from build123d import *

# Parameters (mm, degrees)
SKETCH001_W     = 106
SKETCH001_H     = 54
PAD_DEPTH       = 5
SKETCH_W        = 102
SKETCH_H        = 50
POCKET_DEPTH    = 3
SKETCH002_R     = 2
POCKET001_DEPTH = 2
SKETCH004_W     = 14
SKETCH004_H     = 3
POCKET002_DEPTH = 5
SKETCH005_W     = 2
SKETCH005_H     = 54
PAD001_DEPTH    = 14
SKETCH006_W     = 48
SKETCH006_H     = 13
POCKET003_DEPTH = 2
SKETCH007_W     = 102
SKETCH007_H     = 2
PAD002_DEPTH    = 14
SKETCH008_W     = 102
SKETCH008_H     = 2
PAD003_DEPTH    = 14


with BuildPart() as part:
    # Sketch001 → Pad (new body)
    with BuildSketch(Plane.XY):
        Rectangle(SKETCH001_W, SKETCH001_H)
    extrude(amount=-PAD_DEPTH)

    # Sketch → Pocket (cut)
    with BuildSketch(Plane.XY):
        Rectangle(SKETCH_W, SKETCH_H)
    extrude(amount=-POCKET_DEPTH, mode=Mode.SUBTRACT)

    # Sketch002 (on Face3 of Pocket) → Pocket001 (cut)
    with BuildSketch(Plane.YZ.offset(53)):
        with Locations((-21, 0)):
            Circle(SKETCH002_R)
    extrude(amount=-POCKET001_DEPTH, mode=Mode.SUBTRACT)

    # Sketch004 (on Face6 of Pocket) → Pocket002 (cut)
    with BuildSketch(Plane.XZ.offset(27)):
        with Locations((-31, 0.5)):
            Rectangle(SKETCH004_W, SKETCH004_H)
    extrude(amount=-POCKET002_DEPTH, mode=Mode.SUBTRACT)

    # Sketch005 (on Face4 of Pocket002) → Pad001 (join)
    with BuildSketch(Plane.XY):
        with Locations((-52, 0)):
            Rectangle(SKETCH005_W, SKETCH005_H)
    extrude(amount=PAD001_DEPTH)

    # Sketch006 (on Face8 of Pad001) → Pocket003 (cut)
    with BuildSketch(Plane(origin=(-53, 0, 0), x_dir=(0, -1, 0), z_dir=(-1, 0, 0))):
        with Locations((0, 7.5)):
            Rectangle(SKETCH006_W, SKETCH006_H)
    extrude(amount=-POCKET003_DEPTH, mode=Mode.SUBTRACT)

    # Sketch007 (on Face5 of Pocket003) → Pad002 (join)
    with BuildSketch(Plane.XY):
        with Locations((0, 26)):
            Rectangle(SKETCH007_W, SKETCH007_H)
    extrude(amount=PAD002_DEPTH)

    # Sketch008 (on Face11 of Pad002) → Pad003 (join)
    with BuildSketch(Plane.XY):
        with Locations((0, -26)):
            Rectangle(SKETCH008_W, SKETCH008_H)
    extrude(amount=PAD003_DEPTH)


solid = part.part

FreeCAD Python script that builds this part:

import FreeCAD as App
import Part
import Sketcher
from FreeCAD import Vector
Q = App.Units.Quantity


def add_polygon(sketch, points):
    """Adds a closed chain of lines whose ends are joined by coincident constraints."""
    first, n = sketch.GeometryCount, len(points)
    for a, b in zip(points, points[1:] + points[:1]):
        sketch.addGeometry(Part.LineSegment(App.Vector(*a, 0), App.Vector(*b, 0)), False)
    for i in range(n):
        sketch.addConstraint(Sketcher.Constraint("Coincident", first + i, 2, first + (i + 1) % n, 1))

doc = App.newDocument("Part")
body = doc.addObject("PartDesign::Body", "Body")

# Sketch on XY plane
sketch1 = doc.addObject("Sketcher::SketchObject", "Sketch")
body.addObject(sketch1)
sketch1.AttachmentSupport = (doc.XY_Plane, [""])
sketch1.MapMode = "FlatFace"
add_polygon(sketch1, [(-53, 27), (-53, -27), (53, -27), (53, 27)])  # lines 0-3
sketch1.addConstraint([
    Sketcher.Constraint("Vertical", 0),
    Sketcher.Constraint("Horizontal", 1),
    Sketcher.Constraint("Vertical", 2),
    Sketcher.Constraint("Horizontal", 3),
    Sketcher.Constraint("Symmetric", 0, 2, 2, 2, -1, 1),
    Sketcher.Constraint("DistanceX", 1, 1, 1, 2, Q("106 mm")),
    Sketcher.Constraint("DistanceY", 0, 2, 0, 1, Q("54 mm")),
])
pad1 = doc.addObject("PartDesign::Pad", "Pad")
body.addObject(pad1)
pad1.Profile = sketch1
pad1.Length = 5
pad1.Reversed = True

# Sketch on XY plane
sketch2 = doc.addObject("Sketcher::SketchObject", "Sketch001")
body.addObject(sketch2)
sketch2.AttachmentSupport = (doc.XY_Plane, [""])
sketch2.MapMode = "FlatFace"
add_polygon(sketch2, [(-51, 25), (-51, -25), (51, -25), (51, 25)])  # lines 0-3
sketch2.addConstraint([
    Sketcher.Constraint("Vertical", 0),
    Sketcher.Constraint("Horizontal", 1),
    Sketcher.Constraint("Vertical", 2),
    Sketcher.Constraint("Horizontal", 3),
    Sketcher.Constraint("Symmetric", 0, 2, 2, 2, -1, 1),
    Sketcher.Constraint("DistanceX", 1, 1, 1, 2, Q("102 mm")),
    Sketcher.Constraint("DistanceY", 0, 2, 0, 1, Q("50 mm")),
])
pocket1 = doc.addObject("PartDesign::Pocket", "Pocket")
body.addObject(pocket1)
pocket1.Profile = sketch2
pocket1.Length = 3

# Sketch on YZ plane
sketch3 = doc.addObject("Sketcher::SketchObject", "Sketch002")
body.addObject(sketch3)
sketch3.AttachmentSupport = (doc.YZ_Plane, [""])
sketch3.MapMode = "FlatFace"
sketch3.AttachmentOffset = App.Placement(Vector(0, 0, 53), App.Rotation())
sketch3.addGeometry(Part.Circle(Vector(-21, 0, 0), Vector(0, 0, 1), 2), False)
sketch3.addConstraint([
    Sketcher.Constraint("PointOnObject", 0, 3, -1),
    Sketcher.Constraint("Diameter", 0, Q("4 mm")),
    Sketcher.Constraint("DistanceX", 0, 3, -1, 1, Q("21 mm")),
])
pocket2 = doc.addObject("PartDesign::Pocket", "Pocket001")
body.addObject(pocket2)
pocket2.Profile = sketch3
pocket2.Length = 2

# Sketch on XZ plane
sketch4 = doc.addObject("Sketcher::SketchObject", "Sketch003")
body.addObject(sketch4)
sketch4.AttachmentSupport = (doc.XZ_Plane, [""])
sketch4.MapMode = "FlatFace"
sketch4.AttachmentOffset = App.Placement(Vector(0, 0, 27), App.Rotation())
add_polygon(sketch4, [(-38, 2), (-38, -1), (-24, -1), (-24, 2)])  # lines 0-3
sketch4.addConstraint([
    Sketcher.Constraint("Vertical", 0),
    Sketcher.Constraint("Horizontal", 1),
    Sketcher.Constraint("Vertical", 2),
    Sketcher.Constraint("Horizontal", 3),
    Sketcher.Constraint("DistanceX", 1, 1, 1, 2, Q("14 mm")),
    Sketcher.Constraint("DistanceY", 0, 2, 0, 1, Q("3 mm")),
    Sketcher.Constraint("DistanceX", 0, 2, -1, 1, Q("38 mm")),
    Sketcher.Constraint("DistanceY", 0, 2, -1, 1, Q("1 mm")),
])
pocket3 = doc.addObject("PartDesign::Pocket", "Pocket002")
body.addObject(pocket3)
pocket3.Profile = sketch4
pocket3.Length = 5

# Sketch on XY plane
sketch5 = doc.addObject("Sketcher::SketchObject", "Sketch004")
body.addObject(sketch5)
sketch5.AttachmentSupport = (doc.XY_Plane, [""])
sketch5.MapMode = "FlatFace"
add_polygon(sketch5, [(-53, 27), (-53, -27), (-51, -27), (-51, 27)])  # lines 0-3
sketch5.addConstraint([
    Sketcher.Constraint("Vertical", 0),
    Sketcher.Constraint("Horizontal", 1),
    Sketcher.Constraint("Vertical", 2),
    Sketcher.Constraint("Horizontal", 3),
    Sketcher.Constraint("DistanceX", 1, 1, 1, 2, Q("2 mm")),
    Sketcher.Constraint("DistanceY", 0, 2, 0, 1, Q("54 mm")),
    Sketcher.Constraint("DistanceX", 0, 2, -1, 1, Q("53 mm")),
    Sketcher.Constraint("DistanceY", 0, 2, -1, 1, Q("27 mm")),
])
pad2 = doc.addObject("PartDesign::Pad", "Pad001")
body.addObject(pad2)
pad2.Profile = sketch5
pad2.Length = 14

# Sketch on YZ plane
sketch6 = doc.addObject("Sketcher::SketchObject", "Sketch005")
body.addObject(sketch6)
sketch6.AttachmentSupport = (doc.YZ_Plane, [""])
sketch6.MapMode = "FlatFace"
sketch6.AttachmentOffset = App.Placement(Vector(0, 0, -53), App.Rotation())
add_polygon(sketch6, [(24, 14), (24, 1), (-24, 1), (-24, 14)])  # lines 0-3
sketch6.addConstraint([
    Sketcher.Constraint("Vertical", 0),
    Sketcher.Constraint("Horizontal", 1),
    Sketcher.Constraint("Vertical", 2),
    Sketcher.Constraint("Horizontal", 3),
    Sketcher.Constraint("DistanceX", 1, 2, 1, 1, Q("48 mm")),
    Sketcher.Constraint("DistanceY", 0, 2, 0, 1, Q("13 mm")),
    Sketcher.Constraint("DistanceX", -1, 1, 0, 2, Q("24 mm")),
    Sketcher.Constraint("DistanceY", -1, 1, 0, 2, Q("1 mm")),
])
pocket4 = doc.addObject("PartDesign::Pocket", "Pocket003")
body.addObject(pocket4)
pocket4.Profile = sketch6
pocket4.Length = 2
pocket4.Reversed = True

# Sketch on XY plane
sketch7 = doc.addObject("Sketcher::SketchObject", "Sketch006")
body.addObject(sketch7)
sketch7.AttachmentSupport = (doc.XY_Plane, [""])
sketch7.MapMode = "FlatFace"
add_polygon(sketch7, [(-51, 27), (-51, 25), (51, 25), (51, 27)])  # lines 0-3
sketch7.addConstraint([
    Sketcher.Constraint("Vertical", 0),
    Sketcher.Constraint("Horizontal", 1),
    Sketcher.Constraint("Vertical", 2),
    Sketcher.Constraint("Horizontal", 3),
    Sketcher.Constraint("DistanceX", 1, 1, 1, 2, Q("102 mm")),
    Sketcher.Constraint("DistanceY", 0, 2, 0, 1, Q("2 mm")),
    Sketcher.Constraint("DistanceX", 0, 2, -1, 1, Q("51 mm")),
    Sketcher.Constraint("DistanceY", -1, 1, 0, 2, Q("25 mm")),
])
pad3 = doc.addObject("PartDesign::Pad", "Pad002")
body.addObject(pad3)
pad3.Profile = sketch7
pad3.Length = 14

# Sketch on XY plane
sketch8 = doc.addObject("Sketcher::SketchObject", "Sketch007")
body.addObject(sketch8)
sketch8.AttachmentSupport = (doc.XY_Plane, [""])
sketch8.MapMode = "FlatFace"
add_polygon(sketch8, [(-51, -25), (-51, -27), (51, -27), (51, -25)])  # lines 0-3
sketch8.addConstraint([
    Sketcher.Constraint("Vertical", 0),
    Sketcher.Constraint("Horizontal", 1),
    Sketcher.Constraint("Vertical", 2),
    Sketcher.Constraint("Horizontal", 3),
    Sketcher.Constraint("DistanceX", 1, 1, 1, 2, Q("102 mm")),
    Sketcher.Constraint("DistanceY", 0, 2, 0, 1, Q("2 mm")),
    Sketcher.Constraint("DistanceX", 0, 2, -1, 1, Q("51 mm")),
    Sketcher.Constraint("DistanceY", 0, 2, -1, 1, Q("27 mm")),
])
pad4 = doc.addObject("PartDesign::Pad", "Pad003")
body.addObject(pad4)
pad4.Profile = sketch8
pad4.Length = 14

doc.recompute()
